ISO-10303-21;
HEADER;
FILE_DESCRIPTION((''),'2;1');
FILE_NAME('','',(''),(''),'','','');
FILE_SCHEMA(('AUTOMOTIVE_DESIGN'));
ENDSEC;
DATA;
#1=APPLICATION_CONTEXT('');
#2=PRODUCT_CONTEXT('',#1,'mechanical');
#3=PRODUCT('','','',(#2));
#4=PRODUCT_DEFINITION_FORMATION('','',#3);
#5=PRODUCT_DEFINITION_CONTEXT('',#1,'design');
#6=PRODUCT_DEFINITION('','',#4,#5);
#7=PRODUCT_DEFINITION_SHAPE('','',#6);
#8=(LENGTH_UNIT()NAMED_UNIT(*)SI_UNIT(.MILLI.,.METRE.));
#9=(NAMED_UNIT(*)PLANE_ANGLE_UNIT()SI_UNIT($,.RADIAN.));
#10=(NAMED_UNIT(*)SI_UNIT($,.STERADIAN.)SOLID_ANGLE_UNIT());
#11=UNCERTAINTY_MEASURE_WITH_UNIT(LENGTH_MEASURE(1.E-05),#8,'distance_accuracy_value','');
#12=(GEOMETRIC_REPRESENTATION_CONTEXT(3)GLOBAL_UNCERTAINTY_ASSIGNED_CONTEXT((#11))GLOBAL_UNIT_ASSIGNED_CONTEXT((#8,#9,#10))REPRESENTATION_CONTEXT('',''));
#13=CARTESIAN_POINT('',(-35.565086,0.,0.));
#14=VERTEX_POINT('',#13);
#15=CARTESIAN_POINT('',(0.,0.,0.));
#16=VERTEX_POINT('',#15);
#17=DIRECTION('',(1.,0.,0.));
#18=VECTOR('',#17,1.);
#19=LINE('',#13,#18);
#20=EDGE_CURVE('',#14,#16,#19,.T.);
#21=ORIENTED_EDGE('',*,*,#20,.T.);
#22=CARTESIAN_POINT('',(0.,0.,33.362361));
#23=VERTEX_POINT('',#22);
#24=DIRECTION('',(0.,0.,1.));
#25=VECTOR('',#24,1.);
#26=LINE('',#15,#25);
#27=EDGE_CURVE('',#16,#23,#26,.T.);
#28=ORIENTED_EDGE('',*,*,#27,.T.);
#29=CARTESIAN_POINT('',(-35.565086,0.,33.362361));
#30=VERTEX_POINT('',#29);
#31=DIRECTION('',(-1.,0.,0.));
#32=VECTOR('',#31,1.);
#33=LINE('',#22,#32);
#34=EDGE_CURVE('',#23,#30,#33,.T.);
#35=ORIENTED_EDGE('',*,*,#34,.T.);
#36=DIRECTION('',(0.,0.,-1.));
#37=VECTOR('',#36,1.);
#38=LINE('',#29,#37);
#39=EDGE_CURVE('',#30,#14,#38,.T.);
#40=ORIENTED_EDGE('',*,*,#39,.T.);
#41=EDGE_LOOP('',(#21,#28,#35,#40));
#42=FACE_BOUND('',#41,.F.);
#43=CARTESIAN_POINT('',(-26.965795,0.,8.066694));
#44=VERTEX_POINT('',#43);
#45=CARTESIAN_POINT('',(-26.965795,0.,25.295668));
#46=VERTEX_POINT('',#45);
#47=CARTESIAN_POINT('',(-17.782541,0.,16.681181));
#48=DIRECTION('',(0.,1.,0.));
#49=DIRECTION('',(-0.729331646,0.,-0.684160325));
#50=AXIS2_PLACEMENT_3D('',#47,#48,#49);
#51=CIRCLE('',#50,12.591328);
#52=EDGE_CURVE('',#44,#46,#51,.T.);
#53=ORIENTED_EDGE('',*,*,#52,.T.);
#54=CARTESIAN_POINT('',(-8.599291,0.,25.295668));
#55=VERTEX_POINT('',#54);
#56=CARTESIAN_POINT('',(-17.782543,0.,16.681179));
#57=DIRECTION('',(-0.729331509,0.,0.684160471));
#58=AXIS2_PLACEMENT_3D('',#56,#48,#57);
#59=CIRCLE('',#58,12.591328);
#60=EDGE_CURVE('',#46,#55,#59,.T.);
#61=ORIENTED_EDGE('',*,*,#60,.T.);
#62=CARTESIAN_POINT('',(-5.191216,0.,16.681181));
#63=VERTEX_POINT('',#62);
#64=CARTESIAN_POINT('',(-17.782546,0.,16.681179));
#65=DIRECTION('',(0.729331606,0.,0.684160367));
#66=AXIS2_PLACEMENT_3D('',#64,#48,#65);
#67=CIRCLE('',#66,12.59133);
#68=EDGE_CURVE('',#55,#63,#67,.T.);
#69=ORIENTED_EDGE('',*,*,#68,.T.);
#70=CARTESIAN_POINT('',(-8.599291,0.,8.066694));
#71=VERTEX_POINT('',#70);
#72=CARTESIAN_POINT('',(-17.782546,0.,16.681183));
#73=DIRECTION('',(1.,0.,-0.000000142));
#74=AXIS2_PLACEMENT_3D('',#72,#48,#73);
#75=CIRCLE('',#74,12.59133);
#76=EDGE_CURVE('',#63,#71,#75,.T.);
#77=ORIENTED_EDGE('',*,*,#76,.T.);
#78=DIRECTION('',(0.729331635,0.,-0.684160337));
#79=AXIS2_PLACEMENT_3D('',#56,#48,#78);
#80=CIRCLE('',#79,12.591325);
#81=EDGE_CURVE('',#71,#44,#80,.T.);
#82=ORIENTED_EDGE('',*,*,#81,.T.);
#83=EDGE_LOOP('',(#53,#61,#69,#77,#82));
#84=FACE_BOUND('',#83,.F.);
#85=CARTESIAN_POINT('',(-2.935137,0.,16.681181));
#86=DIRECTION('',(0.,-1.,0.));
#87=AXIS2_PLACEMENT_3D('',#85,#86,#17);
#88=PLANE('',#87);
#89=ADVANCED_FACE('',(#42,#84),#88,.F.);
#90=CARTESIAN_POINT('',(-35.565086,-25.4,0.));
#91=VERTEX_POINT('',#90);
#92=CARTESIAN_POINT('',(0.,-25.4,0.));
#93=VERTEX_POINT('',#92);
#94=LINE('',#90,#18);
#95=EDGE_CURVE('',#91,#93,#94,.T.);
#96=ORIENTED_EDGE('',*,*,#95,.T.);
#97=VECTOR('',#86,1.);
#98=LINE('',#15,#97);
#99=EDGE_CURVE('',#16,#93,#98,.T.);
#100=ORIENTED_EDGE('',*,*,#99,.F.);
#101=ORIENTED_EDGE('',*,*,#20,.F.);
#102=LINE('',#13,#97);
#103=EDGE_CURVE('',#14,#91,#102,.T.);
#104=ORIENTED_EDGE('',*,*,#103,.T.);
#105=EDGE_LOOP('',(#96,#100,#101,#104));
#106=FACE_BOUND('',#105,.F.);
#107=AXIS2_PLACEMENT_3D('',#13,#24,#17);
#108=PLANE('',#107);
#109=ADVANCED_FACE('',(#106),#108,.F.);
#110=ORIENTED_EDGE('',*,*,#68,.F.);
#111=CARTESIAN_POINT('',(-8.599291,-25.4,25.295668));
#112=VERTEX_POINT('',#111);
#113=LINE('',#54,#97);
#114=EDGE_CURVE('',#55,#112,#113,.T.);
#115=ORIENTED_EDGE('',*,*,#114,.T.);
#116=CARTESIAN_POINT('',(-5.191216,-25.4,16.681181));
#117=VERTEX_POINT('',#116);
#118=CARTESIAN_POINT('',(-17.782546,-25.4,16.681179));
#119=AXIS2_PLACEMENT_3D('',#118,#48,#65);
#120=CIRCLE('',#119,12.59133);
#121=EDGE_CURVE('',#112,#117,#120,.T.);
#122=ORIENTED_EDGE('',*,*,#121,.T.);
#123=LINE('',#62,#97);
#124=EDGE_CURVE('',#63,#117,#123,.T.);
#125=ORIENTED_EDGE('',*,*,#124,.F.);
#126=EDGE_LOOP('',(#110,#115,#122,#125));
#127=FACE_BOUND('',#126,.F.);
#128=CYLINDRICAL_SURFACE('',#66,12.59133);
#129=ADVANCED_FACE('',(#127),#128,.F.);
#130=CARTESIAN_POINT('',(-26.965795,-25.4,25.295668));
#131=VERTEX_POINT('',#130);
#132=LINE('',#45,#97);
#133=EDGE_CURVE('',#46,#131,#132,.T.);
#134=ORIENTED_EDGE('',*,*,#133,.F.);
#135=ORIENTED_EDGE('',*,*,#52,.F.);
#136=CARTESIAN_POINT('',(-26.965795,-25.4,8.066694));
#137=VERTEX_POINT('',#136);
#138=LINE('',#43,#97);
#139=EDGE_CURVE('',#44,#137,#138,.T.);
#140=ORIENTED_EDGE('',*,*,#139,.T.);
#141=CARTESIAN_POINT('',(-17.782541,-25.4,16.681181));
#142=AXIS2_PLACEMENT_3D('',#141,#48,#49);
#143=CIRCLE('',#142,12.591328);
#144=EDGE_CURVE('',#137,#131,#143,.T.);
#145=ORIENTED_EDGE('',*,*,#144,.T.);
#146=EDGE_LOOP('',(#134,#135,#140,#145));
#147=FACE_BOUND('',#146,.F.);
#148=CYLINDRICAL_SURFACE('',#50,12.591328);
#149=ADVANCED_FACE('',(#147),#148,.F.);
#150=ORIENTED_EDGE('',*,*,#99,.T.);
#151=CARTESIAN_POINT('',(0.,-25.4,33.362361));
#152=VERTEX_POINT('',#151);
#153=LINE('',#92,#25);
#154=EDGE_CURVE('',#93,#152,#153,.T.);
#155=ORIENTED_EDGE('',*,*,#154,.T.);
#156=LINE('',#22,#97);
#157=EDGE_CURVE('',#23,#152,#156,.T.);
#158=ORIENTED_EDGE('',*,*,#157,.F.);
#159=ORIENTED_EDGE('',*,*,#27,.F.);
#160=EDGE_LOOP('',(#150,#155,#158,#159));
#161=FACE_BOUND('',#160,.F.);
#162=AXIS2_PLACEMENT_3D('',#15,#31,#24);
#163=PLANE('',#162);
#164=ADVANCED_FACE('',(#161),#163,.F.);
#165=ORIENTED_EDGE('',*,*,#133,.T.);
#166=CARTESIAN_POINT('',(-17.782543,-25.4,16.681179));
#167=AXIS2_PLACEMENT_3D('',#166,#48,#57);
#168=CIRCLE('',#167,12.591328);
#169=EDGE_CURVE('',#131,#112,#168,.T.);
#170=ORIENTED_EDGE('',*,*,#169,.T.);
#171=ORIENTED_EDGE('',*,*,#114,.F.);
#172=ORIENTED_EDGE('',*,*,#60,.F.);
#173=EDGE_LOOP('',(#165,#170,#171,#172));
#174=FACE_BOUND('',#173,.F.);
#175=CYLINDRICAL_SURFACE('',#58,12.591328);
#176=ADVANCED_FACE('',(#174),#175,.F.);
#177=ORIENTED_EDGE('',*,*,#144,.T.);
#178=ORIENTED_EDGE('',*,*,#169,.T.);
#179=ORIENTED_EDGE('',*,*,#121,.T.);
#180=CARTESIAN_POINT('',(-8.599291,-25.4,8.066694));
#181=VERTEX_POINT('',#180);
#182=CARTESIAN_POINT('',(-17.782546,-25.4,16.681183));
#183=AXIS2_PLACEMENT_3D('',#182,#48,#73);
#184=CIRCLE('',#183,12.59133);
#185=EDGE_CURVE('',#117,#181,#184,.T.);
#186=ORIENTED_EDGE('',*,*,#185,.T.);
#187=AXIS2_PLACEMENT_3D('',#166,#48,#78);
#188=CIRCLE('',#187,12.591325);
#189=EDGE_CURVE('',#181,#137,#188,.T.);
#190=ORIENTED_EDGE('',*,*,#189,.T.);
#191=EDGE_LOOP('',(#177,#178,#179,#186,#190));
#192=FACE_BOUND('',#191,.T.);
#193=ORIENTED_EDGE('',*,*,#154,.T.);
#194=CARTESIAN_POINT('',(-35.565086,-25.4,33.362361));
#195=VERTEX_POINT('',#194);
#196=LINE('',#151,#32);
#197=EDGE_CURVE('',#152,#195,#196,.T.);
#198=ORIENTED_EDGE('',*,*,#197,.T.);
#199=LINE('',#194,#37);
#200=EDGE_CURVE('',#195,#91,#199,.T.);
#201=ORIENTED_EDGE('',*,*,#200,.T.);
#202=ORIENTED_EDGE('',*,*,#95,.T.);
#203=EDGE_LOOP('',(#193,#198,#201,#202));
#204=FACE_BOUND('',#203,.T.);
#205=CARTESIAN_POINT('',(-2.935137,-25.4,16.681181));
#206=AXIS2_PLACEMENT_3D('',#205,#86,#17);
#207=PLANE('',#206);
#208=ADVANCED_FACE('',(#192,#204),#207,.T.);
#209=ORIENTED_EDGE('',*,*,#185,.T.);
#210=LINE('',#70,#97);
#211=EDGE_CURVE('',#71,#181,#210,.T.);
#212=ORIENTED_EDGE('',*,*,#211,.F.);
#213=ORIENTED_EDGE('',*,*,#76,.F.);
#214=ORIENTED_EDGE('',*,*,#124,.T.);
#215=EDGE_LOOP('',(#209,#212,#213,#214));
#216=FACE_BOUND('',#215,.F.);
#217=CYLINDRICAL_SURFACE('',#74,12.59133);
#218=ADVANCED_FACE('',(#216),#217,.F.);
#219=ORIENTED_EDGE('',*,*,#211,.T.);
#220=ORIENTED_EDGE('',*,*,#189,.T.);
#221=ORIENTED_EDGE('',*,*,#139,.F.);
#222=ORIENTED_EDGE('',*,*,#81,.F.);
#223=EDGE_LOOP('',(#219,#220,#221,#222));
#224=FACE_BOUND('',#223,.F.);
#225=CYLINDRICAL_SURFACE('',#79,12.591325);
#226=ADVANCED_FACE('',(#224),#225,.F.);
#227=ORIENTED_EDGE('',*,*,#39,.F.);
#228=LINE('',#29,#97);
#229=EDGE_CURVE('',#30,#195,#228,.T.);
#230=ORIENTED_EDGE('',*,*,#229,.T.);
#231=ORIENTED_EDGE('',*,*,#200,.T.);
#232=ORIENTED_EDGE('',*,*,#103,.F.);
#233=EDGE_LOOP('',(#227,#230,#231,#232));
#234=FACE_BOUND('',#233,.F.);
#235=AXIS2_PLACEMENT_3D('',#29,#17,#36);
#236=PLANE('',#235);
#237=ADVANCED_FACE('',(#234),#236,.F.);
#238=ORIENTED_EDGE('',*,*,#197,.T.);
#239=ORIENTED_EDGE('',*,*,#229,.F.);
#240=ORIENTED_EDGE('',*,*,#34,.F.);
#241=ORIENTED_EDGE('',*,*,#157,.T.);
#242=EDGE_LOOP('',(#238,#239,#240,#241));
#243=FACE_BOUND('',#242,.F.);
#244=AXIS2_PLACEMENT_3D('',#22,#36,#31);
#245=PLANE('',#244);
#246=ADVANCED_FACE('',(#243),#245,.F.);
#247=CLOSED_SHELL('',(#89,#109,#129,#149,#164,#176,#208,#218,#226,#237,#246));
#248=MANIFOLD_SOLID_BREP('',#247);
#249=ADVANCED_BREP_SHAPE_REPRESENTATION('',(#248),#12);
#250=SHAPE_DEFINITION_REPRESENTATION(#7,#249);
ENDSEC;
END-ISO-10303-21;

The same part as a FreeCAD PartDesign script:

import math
import FreeCAD as App
import Part
import Sketcher
Q = App.Units.Quantity

doc = App.newDocument("Part")
params = doc.addObject("Spreadsheet::Sheet", "Params")
for row, (alias, value) in enumerate([
    ("pad1_length", "1 in"),
], start=1):
    params.set(f"A{row}", alias)
    params.set(f"B{row}", "=" + value)
    params.setAlias(f"B{row}", alias)

body = doc.addObject("PartDesign::Body", "Body")

# Sketch on XZ plane
sketch1 = doc.addObject("Sketcher::SketchObject", "Sketch")
body.addObject(sketch1)
sketch1.AttachmentSupport = (doc.XZ_Plane, [""])
sketch1.MapMode = "FlatFace"
sketch1.addGeometry(Part.LineSegment(App.Vector(0, 0, 0), App.Vector(0, 33, 0)), False)
sketch1.addGeometry(Part.LineSegment(App.Vector(0, 33, 0), App.Vector(-36, 33, 0)), False)
sketch1.addGeometry(Part.LineSegment(App.Vector(-36, 33, 0), App.Vector(-36, 0, 0)), False)
sketch1.addGeometry(Part.LineSegment(App.Vector(-36, 0, 0), App.Vector(0, 0, 0)), False)
sketch1.addGeometry(Part.ArcOfCircle(Part.Circle(App.Vector(-18, 17, 0), App.Vector(0, 0, 1), 13), math.radians(0), math.radians(43)), False)
sketch1.addGeometry(Part.ArcOfCircle(Part.Circle(App.Vector(-18, 17, 0), App.Vector(0, 0, 1), 13), math.radians(-43), math.radians(0)), False)
sketch1.addGeometry(Part.ArcOfCircle(Part.Circle(App.Vector(-18, 17, 0), App.Vector(0, 0, 1), 13), math.radians(-137), math.radians(-43)), False)
sketch1.addGeometry(Part.ArcOfCircle(Part.Circle(App.Vector(-18, 17, 0), App.Vector(0, 0, 1), 13), math.radians(137), math.radians(223)), False)
sketch1.addGeometry(Part.ArcOfCircle(Part.Circle(App.Vector(-18, 17, 0), App.Vector(0, 0, 1), 13), math.radians(43), math.radians(137)), False)
sketch1.addConstraint(Sketcher.Constraint("Coincident", 0, 2, 1, 1))
sketch1.addConstraint(Sketcher.Constraint("Coincident", 1, 2, 2, 1))
sketch1.addConstraint(Sketcher.Constraint("Coincident", 2, 2, 3, 1))
sketch1.addConstraint(Sketcher.Constraint("Coincident", 3, 2, 0, 1))
sketch1.addConstraint(Sketcher.Constraint("Tangent", 4, 1, 5, 2))
sketch1.addConstraint(Sketcher.Constraint("Tangent", 5, 1, 6, 2))
sketch1.addConstraint(Sketcher.Constraint("Tangent", 6, 1, 7, 2))
sketch1.addConstraint(Sketcher.Constraint("Tangent", 7, 1, 8, 2))
sketch1.addConstraint(Sketcher.Constraint("Tangent", 8, 1, 4, 2))
sketch1.addConstraint(Sketcher.Constraint("Vertical", 0))
sketch1.addConstraint(Sketcher.Constraint("Horizontal", 1))
sketch1.addConstraint(Sketcher.Constraint("Vertical", 2))
sketch1.addConstraint(Sketcher.Constraint("Horizontal", 3))
sketch1.addConstraint(Sketcher.Constraint("Coincident", 3, 2, -1, 1))
sketch1.addConstraint(Sketcher.Constraint("Coincident", 6, 3, 4, 3))
sketch1.addConstraint(Sketcher.Constraint("Horizontal", 8, 3, 4, 1))
sketch1.addConstraint(Sketcher.Constraint("Horizontal", 5, 1, 6, 1))
sketch1.addConstraint(Sketcher.Constraint("Horizontal", 7, 1, 8, 1))
sketch1.addConstraint(Sketcher.Constraint("Vertical", 6, 1, 7, 1))
sketch1.addConstraint(Sketcher.Constraint("Radius", 4, Q("12.59133 mm")))
sketch1.addConstraint(Sketcher.Constraint("DistanceX", 6, 3, -1, 1, Q("0.7001001 in")))
sketch1.addConstraint(Sketcher.Constraint("DistanceX", 1, 2, 5, 3, Q("0.7001 in")))
sketch1.addConstraint(Sketcher.Constraint("DistanceY", 0, 1, 0, 2, Q("33.362361 mm")))
sketch1.addConstraint(Sketcher.Constraint("DistanceY", -1, 1, 4, 3, Q("16.681179 mm")))
sketch1.addConstraint(Sketcher.Constraint("DistanceX", 5, 1, -1, 1, Q("8.599291 mm")))
pad1 = doc.addObject("PartDesign::Pad", "Pad")
body.addObject(pad1)
pad1.Profile = sketch1
pad1.setExpression("Length", "Params.pad1_length")

doc.recompute()
